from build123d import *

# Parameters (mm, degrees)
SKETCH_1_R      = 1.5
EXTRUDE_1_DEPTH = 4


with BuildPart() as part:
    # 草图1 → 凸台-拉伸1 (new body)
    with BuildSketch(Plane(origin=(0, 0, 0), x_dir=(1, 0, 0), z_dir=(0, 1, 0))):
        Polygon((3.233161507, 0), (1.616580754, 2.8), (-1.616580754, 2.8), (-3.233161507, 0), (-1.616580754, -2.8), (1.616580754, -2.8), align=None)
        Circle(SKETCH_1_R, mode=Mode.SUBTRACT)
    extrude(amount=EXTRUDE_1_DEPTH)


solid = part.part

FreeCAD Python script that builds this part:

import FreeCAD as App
import Part
import Sketcher
Q = App.Units.Quantity


def add_polygon(sketch, points):
    """Adds a closed chain of lines whose ends are joined by coincident constraints."""
    first, n = sketch.GeometryCount, len(points)
    for a, b in zip(points, points[1:] + points[:1]):
        sketch.addGeometry(Part.LineSegment(App.Vector(*a, 0), App.Vector(*b, 0)), False)
    for i in range(n):
        sketch.addConstraint(Sketcher.Constraint("Coincident", first + i, 2, first + (i + 1) % n, 1))

doc = App.newDocument("Part")
body = doc.addObject("PartDesign::Body", "Body")

# Sketch on XZ plane
sketch1 = body.newObject("Sketcher::SketchObject", "Sketch")
sketch1.AttachmentSupport = (doc.getObject("XZ_Plane"), [""])
sketch1.MapMode = "FlatFace"
add_polygon(sketch1, [(3.233162, 0), (1.616581, -2.8), (-1.616581, -2.8), (-3.233162, 0), (-1.616581, 2.8), (1.616581, 2.8)])  # lines 0-5
sketch1.addGeometry(Part.Circle(App.Vector(0, 0, 0), App.Vector(0, 0, 1), 1.5), False)  # 6
sketch1.addConstraint([
    Sketcher.Constraint("Horizontal", 1),
    Sketcher.Constraint("Horizontal", 4),
    Sketcher.Constraint("Coincident", 6, 3, -1, 1),
    Sketcher.Constraint("Symmetric", 0, 2, 3, 2, -1, 1),
    Sketcher.Constraint("Symmetric", 2, 2, 5, 2, -1, 1),
    Sketcher.Constraint("PointOnObject", 2, 2, -1),
    Sketcher.Constraint("Parallel", 2, 5),
    Sketcher.Constraint("Vertical", 1, 2, 3, 2),
    Sketcher.Constraint("Diameter", 6, Q("3 mm")),
    Sketcher.Constraint("Angle", 0, Q("-120 deg")),
    Sketcher.Constraint("DistanceY", 0, 2, -1, 1, Q("2.8 mm")),
    Sketcher.Constraint("DistanceX", 1, 2, 1, 1, Q("3.233162 mm")),
])
pad1 = body.newObject("PartDesign::Pad", "Pad")
pad1.Profile = sketch1
pad1.Length = 4
pad1.Reversed = True

doc.recompute()
